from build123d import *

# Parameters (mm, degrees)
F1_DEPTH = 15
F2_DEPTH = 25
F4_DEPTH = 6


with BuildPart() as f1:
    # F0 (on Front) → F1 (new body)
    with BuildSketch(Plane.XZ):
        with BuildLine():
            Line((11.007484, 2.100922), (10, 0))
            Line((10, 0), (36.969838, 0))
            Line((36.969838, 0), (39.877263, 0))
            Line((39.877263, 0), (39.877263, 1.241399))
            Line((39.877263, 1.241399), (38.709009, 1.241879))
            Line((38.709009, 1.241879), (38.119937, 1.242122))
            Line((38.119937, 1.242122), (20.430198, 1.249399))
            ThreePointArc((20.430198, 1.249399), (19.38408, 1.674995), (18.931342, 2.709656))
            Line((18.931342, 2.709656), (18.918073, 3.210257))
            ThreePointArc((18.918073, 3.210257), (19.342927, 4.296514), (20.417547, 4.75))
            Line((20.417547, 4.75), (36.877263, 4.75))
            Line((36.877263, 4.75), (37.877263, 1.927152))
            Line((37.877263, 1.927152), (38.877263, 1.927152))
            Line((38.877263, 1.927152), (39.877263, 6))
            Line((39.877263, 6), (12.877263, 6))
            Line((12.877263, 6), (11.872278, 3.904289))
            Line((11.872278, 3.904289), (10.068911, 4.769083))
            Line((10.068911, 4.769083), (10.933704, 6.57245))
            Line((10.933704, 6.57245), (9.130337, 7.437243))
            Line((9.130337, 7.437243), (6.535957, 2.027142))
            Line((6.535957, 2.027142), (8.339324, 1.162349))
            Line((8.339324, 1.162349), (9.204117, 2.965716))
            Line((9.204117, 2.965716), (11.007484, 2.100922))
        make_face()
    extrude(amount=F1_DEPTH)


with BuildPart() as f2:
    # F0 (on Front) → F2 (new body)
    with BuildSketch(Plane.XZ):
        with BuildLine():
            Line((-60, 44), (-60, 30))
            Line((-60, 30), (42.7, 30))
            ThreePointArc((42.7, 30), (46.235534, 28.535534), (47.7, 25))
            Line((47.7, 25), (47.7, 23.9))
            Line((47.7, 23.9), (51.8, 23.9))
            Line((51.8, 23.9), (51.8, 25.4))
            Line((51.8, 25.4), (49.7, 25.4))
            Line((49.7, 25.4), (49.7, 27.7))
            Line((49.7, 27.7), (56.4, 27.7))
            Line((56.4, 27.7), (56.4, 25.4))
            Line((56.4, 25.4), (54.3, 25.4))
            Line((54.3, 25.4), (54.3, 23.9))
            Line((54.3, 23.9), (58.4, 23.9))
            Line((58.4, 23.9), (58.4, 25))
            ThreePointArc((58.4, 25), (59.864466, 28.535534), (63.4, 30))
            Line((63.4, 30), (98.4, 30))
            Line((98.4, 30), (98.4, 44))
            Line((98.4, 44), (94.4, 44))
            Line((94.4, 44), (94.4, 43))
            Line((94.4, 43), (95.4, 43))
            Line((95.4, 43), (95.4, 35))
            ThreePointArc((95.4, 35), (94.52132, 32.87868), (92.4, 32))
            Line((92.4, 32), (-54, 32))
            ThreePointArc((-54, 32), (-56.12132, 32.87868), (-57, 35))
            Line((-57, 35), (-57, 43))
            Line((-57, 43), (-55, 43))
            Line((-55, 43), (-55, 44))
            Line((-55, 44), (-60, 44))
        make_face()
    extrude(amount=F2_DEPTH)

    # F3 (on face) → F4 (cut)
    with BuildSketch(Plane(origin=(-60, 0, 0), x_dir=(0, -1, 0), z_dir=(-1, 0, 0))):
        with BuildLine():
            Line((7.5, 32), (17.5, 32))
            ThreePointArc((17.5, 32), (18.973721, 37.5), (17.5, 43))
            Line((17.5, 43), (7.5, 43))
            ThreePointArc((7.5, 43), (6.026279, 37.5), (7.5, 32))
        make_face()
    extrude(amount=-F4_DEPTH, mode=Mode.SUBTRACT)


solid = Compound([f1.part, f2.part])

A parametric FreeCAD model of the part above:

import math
import FreeCAD as App
import Part
import Sketcher

doc = App.newDocument("Part")
params = doc.addObject("Spreadsheet::Sheet", "Params")
for row, (alias, value) in enumerate([
    ("sketch1_radius", "1.500001 mm"),
    ("sketch1_width", "1 mm"),
    ("sketch1_width2", "27 mm"),
    ("sketch1_length", "2 mm"),
    ("sketch1_length2", "6 mm"),
    ("pad1_length", "15 mm"),
    ("sketch2_radius", "5 mm"),
    ("sketch2_radius2", "3.000001 mm"),
    ("sketch2_width", "35 mm"),
    ("sketch2_width2", "4 mm"),
    ("sketch2_width3", "1 mm"),
    ("pad2_length", "25 mm"),
    ("sketch3_width", "10 mm"),
    ("pocket1_length", "6 mm"),
], start=1):
    params.set(f"A{row}", alias)
    params.set(f"B{row}", "=" + value)
    params.setAlias(f"B{row}", alias)

body = doc.addObject("PartDesign::Body", "Body")

# Sketch on XZ plane
sketch1 = body.newObject("Sketcher::SketchObject", "Sketch")
sketch1.AttachmentSupport = (doc.getObject("XZ_Plane"), [""])
sketch1.MapMode = "FlatFace"
sketch1.addGeometry([
    Part.LineSegment(App.Vector(11, 2.1, 0), App.Vector(10, 0, 0)),  # 0
    Part.LineSegment(App.Vector(10, 0, 0), App.Vector(39.9, 0, 0)),  # 1
    Part.LineSegment(App.Vector(39.9, 0, 0), App.Vector(39.9, 1.2, 0)),  # 2
    Part.LineSegment(App.Vector(39.9, 1.2, 0), App.Vector(38.7, 1.2, 0)),  # 3
    Part.LineSegment(App.Vector(38.7, 1.2, 0), App.Vector(38.1, 1.2, 0)),  # 4
    Part.LineSegment(App.Vector(38.1, 1.2, 0), App.Vector(20.4, 1.2, 0)),  # 5
    Part.ArcOfCircle(Part.Circle(App.Vector(20.4, 2.7, 0), App.Vector(0, 0, 1), 1.5), math.radians(-178), math.radians(-90)),  # 6
    Part.LineSegment(App.Vector(18.9, 2.7, 0), App.Vector(18.9, 3.2, 0)),  # 7
    Part.ArcOfCircle(Part.Circle(App.Vector(20.4, 3.2, 0), App.Vector(0, 0, 1), 1.5), math.radians(90), math.radians(182)),  # 8
    Part.LineSegment(App.Vector(20.4, 4.8, 0), App.Vector(36.9, 4.8, 0)),  # 9
    Part.LineSegment(App.Vector(36.9, 4.8, 0), App.Vector(37.9, 1.9, 0)),  # 10
    Part.LineSegment(App.Vector(37.9, 1.9, 0), App.Vector(38.9, 1.9, 0)),  # 11
    Part.LineSegment(App.Vector(38.9, 1.9, 0), App.Vector(39.9, 6, 0)),  # 12
    Part.LineSegment(App.Vector(39.9, 6, 0), App.Vector(12.9, 6, 0)),  # 13
    Part.LineSegment(App.Vector(12.9, 6, 0), App.Vector(11.9, 3.9, 0)),  # 14
    Part.LineSegment(App.Vector(11.9, 3.9, 0), App.Vector(10.1, 4.8, 0)),  # 15
    Part.LineSegment(App.Vector(10.1, 4.8, 0), App.Vector(10.9, 6.6, 0)),  # 16
    Part.LineSegment(App.Vector(10.9, 6.6, 0), App.Vector(9.1, 7.4, 0)),  # 17
    Part.LineSegment(App.Vector(9.1, 7.4, 0), App.Vector(6.5, 2, 0)),  # 18
    Part.LineSegment(App.Vector(6.5, 2, 0), App.Vector(8.3, 1.2, 0)),  # 19
    Part.LineSegment(App.Vector(8.3, 1.2, 0), App.Vector(9.2, 3, 0)),  # 20
    Part.LineSegment(App.Vector(9.2, 3, 0), App.Vector(11, 2.1, 0)),  # 21
], False)
sketch1.addConstraint([
    Sketcher.Constraint("Coincident", 0, 2, 1, 1),
    Sketcher.Constraint("Coincident", 1, 2, 2, 1),
    Sketcher.Constraint("Coincident", 2, 2, 3, 1),
    Sketcher.Constraint("Coincident", 3, 2, 4, 1),
    Sketcher.Constraint("Coincident", 4, 2, 5, 1),
    Sketcher.Constraint("Tangent", 5, 2, 6, 2),
    Sketcher.Constraint("Tangent", 6, 1, 7, 1),
    Sketcher.Constraint("Coincident", 7, 2, 8, 2),
    Sketcher.Constraint("Tangent", 8, 1, 9, 1),
    Sketcher.Constraint("Coincident", 9, 2, 10, 1),
    Sketcher.Constraint("Coincident", 10, 2, 11, 1),
    Sketcher.Constraint("Coincident", 11, 2, 12, 1),
    Sketcher.Constraint("Coincident", 12, 2, 13, 1),
    Sketcher.Constraint("Coincident", 13, 2, 14, 1),
    Sketcher.Constraint("Coincident", 14, 2, 15, 1),
    Sketcher.Constraint("Coincident", 15, 2, 16, 1),
    Sketcher.Constraint("Coincident", 16, 2, 17, 1),
    Sketcher.Constraint("Coincident", 17, 2, 18, 1),
    Sketcher.Constraint("Coincident", 18, 2, 19, 1),
    Sketcher.Constraint("Coincident", 19, 2, 20, 1),
    Sketcher.Constraint("Coincident", 20, 2, 21, 1),
    Sketcher.Constraint("Coincident", 21, 2, 0, 1),
    Sketcher.Constraint("Horizontal", 1),
    Sketcher.Constraint("Vertical", 2),
    Sketcher.Constraint("Horizontal", 9),
    Sketcher.Constraint("Horizontal", 11),
    Sketcher.Constraint("Horizontal", 13),
    Sketcher.Constraint("Equal", 6, 8),
    Sketcher.Constraint("PointOnObject", 0, 2, -1),
    Sketcher.Constraint("Parallel", 3, 4),
    Sketcher.Constraint("Parallel", 4, 5),
    Sketcher.Constraint("Parallel", 0, 14),
    Sketcher.Constraint("Perpendicular", 14, 15),
    Sketcher.Constraint("Perpendicular", 15, 16),
    Sketcher.Constraint("Perpendicular", 16, 17),
    Sketcher.Constraint("Perpendicular", 17, 18),
    Sketcher.Constraint("Perpendicular", 18, 19),
    Sketcher.Constraint("Perpendicular", 19, 20),
    Sketcher.Constraint("Perpendicular", 20, 21),
    Sketcher.Constraint("Vertical", 2, 2, 12, 2),
    Sketcher.Constraint("Equal", 15, 16),
    Sketcher.Constraint("Equal", 16, 17),
    Sketcher.Constraint("Equal", 17, 19),
    Sketcher.Constraint("Equal", 19, 20),
    Sketcher.Constraint("Equal", 20, 21),
    Sketcher.Constraint("Radius", 6, 1.500001),
    Sketcher.Constraint("DistanceX", 11, 1, 11, 2, 1.0),
    Sketcher.Constraint("DistanceX", 13, 2, 13, 1, 27.0),
    Sketcher.Constraint("Distance", 15, 2.0),
    Sketcher.Constraint("Distance", 18, 6.0),
    Sketcher.Constraint("DistanceX", -1, 1, 0, 2, 10.0),
    Sketcher.Constraint("DistanceY", -1, 1, 12, 2, 6.0),
    Sketcher.Constraint("DistanceX", 9, 2, 2, 2, 3.0),
    Sketcher.Constraint("DistanceX", 10, 2, 2, 2, 2.0),
    Sketcher.Constraint("Distance", 0, 2.329999),
    Sketcher.Constraint("DistanceY", -1, 1, 8, 3, 3.249999),
    Sketcher.Constraint("DistanceY", 2, 1, 2, 2, 1.241399),
    Sketcher.Constraint("DistanceY", 2, 2, 6, 3, 1.508001),
    Sketcher.Constraint("DistanceX", -1, 1, 5, 2, 20.430198),
    Sketcher.Constraint("DistanceY", 6, 1, 7, 2, 0.500601),
    Sketcher.Constraint("DistanceY", 18, 2, 17, 2, 5.410101),
    Sketcher.Constraint("Distance", 5, 17.68974),
    Sketcher.Constraint("Distance", 10, 2.994741),
    Sketcher.Constraint("DistanceX", 9, 1, 9, 2, 16.459716),
    Sketcher.Constraint("DistanceX", -1, 1, 3, 2, 38.709009),
])
sketch1.setExpression("Constraints[45]", "Params.sketch1_radius")
sketch1.setExpression("Constraints[46]", "Params.sketch1_width")
sketch1.setExpression("Constraints[47]", "Params.sketch1_width2")
sketch1.setExpression("Constraints[48]", "Params.sketch1_length")
sketch1.setExpression("Constraints[49]", "Params.sketch1_length2")
pad1 = body.newObject("PartDesign::Pad", "Pad")
pad1.Profile = sketch1
pad1.setExpression("Length", "Params.pad1_length")
body2 = doc.addObject("PartDesign::Body", "Body001")

# Sketch on XZ plane
sketch2 = body2.newObject("Sketcher::SketchObject", "Sketch001")
sketch2.AttachmentSupport = (doc.getObject("XZ_Plane001"), [""])
sketch2.MapMode = "FlatFace"
sketch2.addGeometry([
    Part.LineSegment(App.Vector(-60, 44, 0), App.Vector(-60, 30, 0)),  # 0
    Part.LineSegment(App.Vector(-60, 30, 0), App.Vector(42.7, 30, 0)),  # 1
    Part.ArcOfCircle(Part.Circle(App.Vector(42.7, 25, 0), App.Vector(0, 0, 1), 5), math.radians(0), math.radians(90)),  # 2
    Part.LineSegment(App.Vector(47.7, 25, 0), App.Vector(47.7, 23.9, 0)),  # 3
    Part.LineSegment(App.Vector(47.7, 23.9, 0), App.Vector(51.8, 23.9, 0)),  # 4
    Part.LineSegment(App.Vector(51.8, 23.9, 0), App.Vector(51.8, 25.4, 0)),  # 5
    Part.LineSegment(App.Vector(51.8, 25.4, 0), App.Vector(49.7, 25.4, 0)),  # 6
    Part.LineSegment(App.Vector(49.7, 25.4, 0), App.Vector(49.7, 27.7, 0)),  # 7
    Part.LineSegment(App.Vector(49.7, 27.7, 0), App.Vector(56.4, 27.7, 0)),  # 8
    Part.LineSegment(App.Vector(56.4, 27.7, 0), App.Vector(56.4, 25.4, 0)),  # 9
    Part.LineSegment(App.Vector(56.4, 25.4, 0), App.Vector(54.3, 25.4, 0)),  # 10
    Part.LineSegment(App.Vector(54.3, 25.4, 0), App.Vector(54.3, 23.9, 0)),  # 11
    Part.LineSegment(App.Vector(54.3, 23.9, 0), App.Vector(58.4, 23.9, 0)),  # 12
    Part.LineSegment(App.Vector(58.4, 23.9, 0), App.Vector(58.4, 25, 0)),  # 13
    Part.ArcOfCircle(Part.Circle(App.Vector(63.4, 25, 0), App.Vector(0, 0, 1), 5), math.radians(90), math.radians(180)),  # 14
    Part.LineSegment(App.Vector(63.4, 30, 0), App.Vector(98.4, 30, 0)),  # 15
    Part.LineSegment(App.Vector(98.4, 30, 0), App.Vector(98.4, 44, 0)),  # 16
    Part.LineSegment(App.Vector(98.4, 44, 0), App.Vector(94.4, 44, 0)),  # 17
    Part.LineSegment(App.Vector(94.4, 44, 0), App.Vector(94.4, 43, 0)),  # 18
    Part.LineSegment(App.Vector(94.4, 43, 0), App.Vector(95.4, 43, 0)),  # 19
    Part.LineSegment(App.Vector(95.4, 43, 0), App.Vector(95.4, 35, 0)),  # 20
    Part.ArcOfCircle(Part.Circle(App.Vector(92.4, 35, 0), App.Vector(0, 0, 1), 3), math.radians(-90), math.radians(0)),  # 21
    Part.LineSegment(App.Vector(92.4, 32, 0), App.Vector(-54, 32, 0)),  # 22
    Part.ArcOfCircle(Part.Circle(App.Vector(-54, 35, 0), App.Vector(0, 0, 1), 3), math.radians(-180), math.radians(-90)),  # 23
    Part.LineSegment(App.Vector(-57, 35, 0), App.Vector(-57, 43, 0)),  # 24
    Part.LineSegment(App.Vector(-57, 43, 0), App.Vector(-55, 43, 0)),  # 25
    Part.LineSegment(App.Vector(-55, 43, 0), App.Vector(-55, 44, 0)),  # 26
    Part.LineSegment(App.Vector(-55, 44, 0), App.Vector(-60, 44, 0)),  # 27
], False)
sketch2.addConstraint([
    Sketcher.Constraint("Coincident", 0, 2, 1, 1),
    Sketcher.Constraint("Tangent", 1, 2, 2, 2),
    Sketcher.Constraint("Tangent", 2, 1, 3, 1),
    Sketcher.Constraint("Coincident", 3, 2, 4, 1),
    Sketcher.Constraint("Coincident", 4, 2, 5, 1),
    Sketcher.Constraint("Coincident", 5, 2, 6, 1),
    Sketcher.Constraint("Coincident", 6, 2, 7, 1),
    Sketcher.Constraint("Coincident", 7, 2, 8, 1),
    Sketcher.Constraint("Coincident", 8, 2, 9, 1),
    Sketcher.Constraint("Coincident", 9, 2, 10, 1),
    Sketcher.Constraint("Coincident", 10, 2, 11, 1),
    Sketcher.Constraint("Coincident", 11, 2, 12, 1),
    Sketcher.Constraint("Coincident", 12, 2, 13, 1),
    Sketcher.Constraint("Tangent", 13, 2, 14, 2),
    Sketcher.Constraint("Tangent", 14, 1, 15, 1),
    Sketcher.Constraint("Coincident", 15, 2, 16, 1),
    Sketcher.Constraint("Coincident", 16, 2, 17, 1),
    Sketcher.Constraint("Coincident", 17, 2, 18, 1),
    Sketcher.Constraint("Coincident", 18, 2, 19, 1),
    Sketcher.Constraint("Coincident", 19, 2, 20, 1),
    Sketcher.Constraint("Tangent", 20, 2, 21, 2),
    Sketcher.Constraint("Tangent", 21, 1, 22, 1),
    Sketcher.Constraint("Tangent", 22, 2, 23, 2),
    Sketcher.Constraint("Tangent", 23, 1, 24, 1),
    Sketcher.Constraint("Coincident", 24, 2, 25, 1),
    Sketcher.Constraint("Coincident", 25, 2, 26, 1),
    Sketcher.Constraint("Coincident", 26, 2, 27, 1),
    Sketcher.Constraint("Coincident", 27, 2, 0, 1),
    Sketcher.Constraint("Vertical", 0),
    Sketcher.Constraint("Horizontal", 1),
    Sketcher.Constraint("Vertical", 3),
    Sketcher.Constraint("Horizontal", 4),
    Sketcher.Constraint("Vertical", 5),
    Sketcher.Constraint("Horizontal", 6),
    Sketcher.Constraint("Vertical", 7),
    Sketcher.Constraint("Horizontal", 8),
    Sketcher.Constraint("Vertical", 9),
    Sketcher.Constraint("Horizontal", 10),
    Sketcher.Constraint("Vertical", 11),
    Sketcher.Constraint("Horizontal", 12),
    Sketcher.Constraint("Vertical", 13),
    Sketcher.Constraint("Horizontal", 15),
    Sketcher.Constraint("Vertical", 16),
    Sketcher.Constraint("Horizontal", 17),
    Sketcher.Constraint("Vertical", 18),
    Sketcher.Constraint("Horizontal", 19),
    Sketcher.Constraint("Vertical", 20),
    Sketcher.Constraint("Horizontal", 22),
    Sketcher.Constraint("Vertical", 24),
    Sketcher.Constraint("Horizontal", 25),
    Sketcher.Constraint("Vertical", 26),
    Sketcher.Constraint("Horizontal", 27),
    Sketcher.Constraint("Equal", 2, 14),
    Sketcher.Constraint("Equal", 21, 23),
    Sketcher.Constraint("Horizontal", 2, 3, 14, 3),
    Sketcher.Constraint("Horizontal", 6, 2, 9, 2),
    Sketcher.Constraint("Horizontal", 4, 2, 11, 2),
    Sketcher.Constraint("Horizontal", 19, 2, 24, 2),
    Sketcher.Constraint("Horizontal", 17, 2, 26, 2),
    Sketcher.Constraint("Equal", 6, 10),
    Sketcher.Constraint("Equal", 4, 12),
    Sketcher.Constraint("Equal", 19, 18),
    Sketcher.Constraint("Radius", 2, 5.0),
    Sketcher.Constraint("Radius", 21, 3.000001),
    Sketcher.Constraint("DistanceX", 15, 1, 15, 2, 35.0),
    Sketcher.Constraint("DistanceX", 17, 2, 17, 1, 4.0),
    Sketcher.Constraint("DistanceX", 19, 1, 19, 2, 1.0),
    Sketcher.Constraint("DistanceX", 25, 1, 25, 2, 2.0),
    Sketcher.Constraint("DistanceX", 27, 2, 27, 1, 5.0),
    Sketcher.Constraint("DistanceY", 0, 2, 0, 1, 14.0),
    Sketcher.Constraint("DistanceY", 20, 2, 20, 1, 8.0),
    Sketcher.Constraint("DistanceX", 1, 1, 1, 2, 102.7),
    Sketcher.Constraint("DistanceX", 4, 1, 4, 2, 4.1),
    Sketcher.Constraint("DistanceX", 6, 2, 6, 1, 2.1),
    Sketcher.Constraint("DistanceX", 8, 1, 8, 2, 6.7),
    Sketcher.Constraint("DistanceY", 3, 2, 3, 1, 1.1),
    Sketcher.Constraint("DistanceY", 5, 1, 5, 2, 1.5),
    Sketcher.Constraint("DistanceY", 7, 1, 7, 2, 2.3),
    Sketcher.Constraint("DistanceY", -1, 1, 2, 3, 25.0),
    Sketcher.Constraint("DistanceX", 23, 3, -1, 1, 53.999999),
])
sketch2.setExpression("Constraints[62]", "Params.sketch2_radius")
sketch2.setExpression("Constraints[63]", "Params.sketch2_radius2")
sketch2.setExpression("Constraints[64]", "Params.sketch2_width")
sketch2.setExpression("Constraints[65]", "Params.sketch2_width2")
sketch2.setExpression("Constraints[66]", "Params.sketch2_width3")
pad2 = body2.newObject("PartDesign::Pad", "Pad001")
pad2.Profile = sketch2
pad2.setExpression("Length", "Params.pad2_length")

# Sketch on YZ plane
sketch3 = body2.newObject("Sketcher::SketchObject", "Sketch002")
sketch3.AttachmentSupport = (doc.getObject("YZ_Plane001"), [""])
sketch3.MapMode = "FlatFace"
sketch3.AttachmentOffset = App.Placement(App.Vector(0, 0, -60), App.Rotation())
sketch3.addGeometry([
    Part.LineSegment(App.Vector(-8, 32, 0), App.Vector(-18, 32, 0)),
    Part.ArcOfCircle(Part.Circle(App.Vector(-8, 38, 0), App.Vector(0, 0, 1), 11), math.radians(150), math.radians(210)),
    Part.LineSegment(App.Vector(-18, 43, 0), App.Vector(-8, 43, 0)),
    Part.ArcOfCircle(Part.Circle(App.Vector(-17, 38, 0), App.Vector(0, 0, 1), 11), math.radians(-30), math.radians(30)),
], False)
sketch3.addConstraint([
    Sketcher.Constraint("Coincident", 0, 2, 1, 2),
    Sketcher.Constraint("Coincident", 1, 1, 2, 1),
    Sketcher.Constraint("Coincident", 2, 2, 3, 2),
    Sketcher.Constraint("Coincident", 3, 1, 0, 1),
    Sketcher.Constraint("Horizontal", 0),
    Sketcher.Constraint("Horizontal", 2),
    Sketcher.Constraint("Equal", 1, 3),
    Sketcher.Constraint("Horizontal", 1, 3, 3, 3),
    Sketcher.Constraint("Vertical", 0, 2, 1, 1),
    Sketcher.Constraint("DistanceX", 0, 2, 0, 1, 10.0),
    Sketcher.Constraint("DistanceY", -1, 1, 0, 2, 32.0),
    Sketcher.Constraint("DistanceY", -1, 1, 1, 1, 43.0),
    Sketcher.Constraint("DistanceX", 0, 2, -1, 1, 17.5),
    Sketcher.Constraint("Radius", 1, 10.999997),
])
sketch3.setExpression("Constraints[9]", "Params.sketch3_width")
pocket1 = body2.newObject("PartDesign::Pocket", "Pocket")
pocket1.Profile = sketch3
pocket1.setExpression("Length", "Params.pocket1_length")
pocket1.Reversed = True

doc.recompute()
